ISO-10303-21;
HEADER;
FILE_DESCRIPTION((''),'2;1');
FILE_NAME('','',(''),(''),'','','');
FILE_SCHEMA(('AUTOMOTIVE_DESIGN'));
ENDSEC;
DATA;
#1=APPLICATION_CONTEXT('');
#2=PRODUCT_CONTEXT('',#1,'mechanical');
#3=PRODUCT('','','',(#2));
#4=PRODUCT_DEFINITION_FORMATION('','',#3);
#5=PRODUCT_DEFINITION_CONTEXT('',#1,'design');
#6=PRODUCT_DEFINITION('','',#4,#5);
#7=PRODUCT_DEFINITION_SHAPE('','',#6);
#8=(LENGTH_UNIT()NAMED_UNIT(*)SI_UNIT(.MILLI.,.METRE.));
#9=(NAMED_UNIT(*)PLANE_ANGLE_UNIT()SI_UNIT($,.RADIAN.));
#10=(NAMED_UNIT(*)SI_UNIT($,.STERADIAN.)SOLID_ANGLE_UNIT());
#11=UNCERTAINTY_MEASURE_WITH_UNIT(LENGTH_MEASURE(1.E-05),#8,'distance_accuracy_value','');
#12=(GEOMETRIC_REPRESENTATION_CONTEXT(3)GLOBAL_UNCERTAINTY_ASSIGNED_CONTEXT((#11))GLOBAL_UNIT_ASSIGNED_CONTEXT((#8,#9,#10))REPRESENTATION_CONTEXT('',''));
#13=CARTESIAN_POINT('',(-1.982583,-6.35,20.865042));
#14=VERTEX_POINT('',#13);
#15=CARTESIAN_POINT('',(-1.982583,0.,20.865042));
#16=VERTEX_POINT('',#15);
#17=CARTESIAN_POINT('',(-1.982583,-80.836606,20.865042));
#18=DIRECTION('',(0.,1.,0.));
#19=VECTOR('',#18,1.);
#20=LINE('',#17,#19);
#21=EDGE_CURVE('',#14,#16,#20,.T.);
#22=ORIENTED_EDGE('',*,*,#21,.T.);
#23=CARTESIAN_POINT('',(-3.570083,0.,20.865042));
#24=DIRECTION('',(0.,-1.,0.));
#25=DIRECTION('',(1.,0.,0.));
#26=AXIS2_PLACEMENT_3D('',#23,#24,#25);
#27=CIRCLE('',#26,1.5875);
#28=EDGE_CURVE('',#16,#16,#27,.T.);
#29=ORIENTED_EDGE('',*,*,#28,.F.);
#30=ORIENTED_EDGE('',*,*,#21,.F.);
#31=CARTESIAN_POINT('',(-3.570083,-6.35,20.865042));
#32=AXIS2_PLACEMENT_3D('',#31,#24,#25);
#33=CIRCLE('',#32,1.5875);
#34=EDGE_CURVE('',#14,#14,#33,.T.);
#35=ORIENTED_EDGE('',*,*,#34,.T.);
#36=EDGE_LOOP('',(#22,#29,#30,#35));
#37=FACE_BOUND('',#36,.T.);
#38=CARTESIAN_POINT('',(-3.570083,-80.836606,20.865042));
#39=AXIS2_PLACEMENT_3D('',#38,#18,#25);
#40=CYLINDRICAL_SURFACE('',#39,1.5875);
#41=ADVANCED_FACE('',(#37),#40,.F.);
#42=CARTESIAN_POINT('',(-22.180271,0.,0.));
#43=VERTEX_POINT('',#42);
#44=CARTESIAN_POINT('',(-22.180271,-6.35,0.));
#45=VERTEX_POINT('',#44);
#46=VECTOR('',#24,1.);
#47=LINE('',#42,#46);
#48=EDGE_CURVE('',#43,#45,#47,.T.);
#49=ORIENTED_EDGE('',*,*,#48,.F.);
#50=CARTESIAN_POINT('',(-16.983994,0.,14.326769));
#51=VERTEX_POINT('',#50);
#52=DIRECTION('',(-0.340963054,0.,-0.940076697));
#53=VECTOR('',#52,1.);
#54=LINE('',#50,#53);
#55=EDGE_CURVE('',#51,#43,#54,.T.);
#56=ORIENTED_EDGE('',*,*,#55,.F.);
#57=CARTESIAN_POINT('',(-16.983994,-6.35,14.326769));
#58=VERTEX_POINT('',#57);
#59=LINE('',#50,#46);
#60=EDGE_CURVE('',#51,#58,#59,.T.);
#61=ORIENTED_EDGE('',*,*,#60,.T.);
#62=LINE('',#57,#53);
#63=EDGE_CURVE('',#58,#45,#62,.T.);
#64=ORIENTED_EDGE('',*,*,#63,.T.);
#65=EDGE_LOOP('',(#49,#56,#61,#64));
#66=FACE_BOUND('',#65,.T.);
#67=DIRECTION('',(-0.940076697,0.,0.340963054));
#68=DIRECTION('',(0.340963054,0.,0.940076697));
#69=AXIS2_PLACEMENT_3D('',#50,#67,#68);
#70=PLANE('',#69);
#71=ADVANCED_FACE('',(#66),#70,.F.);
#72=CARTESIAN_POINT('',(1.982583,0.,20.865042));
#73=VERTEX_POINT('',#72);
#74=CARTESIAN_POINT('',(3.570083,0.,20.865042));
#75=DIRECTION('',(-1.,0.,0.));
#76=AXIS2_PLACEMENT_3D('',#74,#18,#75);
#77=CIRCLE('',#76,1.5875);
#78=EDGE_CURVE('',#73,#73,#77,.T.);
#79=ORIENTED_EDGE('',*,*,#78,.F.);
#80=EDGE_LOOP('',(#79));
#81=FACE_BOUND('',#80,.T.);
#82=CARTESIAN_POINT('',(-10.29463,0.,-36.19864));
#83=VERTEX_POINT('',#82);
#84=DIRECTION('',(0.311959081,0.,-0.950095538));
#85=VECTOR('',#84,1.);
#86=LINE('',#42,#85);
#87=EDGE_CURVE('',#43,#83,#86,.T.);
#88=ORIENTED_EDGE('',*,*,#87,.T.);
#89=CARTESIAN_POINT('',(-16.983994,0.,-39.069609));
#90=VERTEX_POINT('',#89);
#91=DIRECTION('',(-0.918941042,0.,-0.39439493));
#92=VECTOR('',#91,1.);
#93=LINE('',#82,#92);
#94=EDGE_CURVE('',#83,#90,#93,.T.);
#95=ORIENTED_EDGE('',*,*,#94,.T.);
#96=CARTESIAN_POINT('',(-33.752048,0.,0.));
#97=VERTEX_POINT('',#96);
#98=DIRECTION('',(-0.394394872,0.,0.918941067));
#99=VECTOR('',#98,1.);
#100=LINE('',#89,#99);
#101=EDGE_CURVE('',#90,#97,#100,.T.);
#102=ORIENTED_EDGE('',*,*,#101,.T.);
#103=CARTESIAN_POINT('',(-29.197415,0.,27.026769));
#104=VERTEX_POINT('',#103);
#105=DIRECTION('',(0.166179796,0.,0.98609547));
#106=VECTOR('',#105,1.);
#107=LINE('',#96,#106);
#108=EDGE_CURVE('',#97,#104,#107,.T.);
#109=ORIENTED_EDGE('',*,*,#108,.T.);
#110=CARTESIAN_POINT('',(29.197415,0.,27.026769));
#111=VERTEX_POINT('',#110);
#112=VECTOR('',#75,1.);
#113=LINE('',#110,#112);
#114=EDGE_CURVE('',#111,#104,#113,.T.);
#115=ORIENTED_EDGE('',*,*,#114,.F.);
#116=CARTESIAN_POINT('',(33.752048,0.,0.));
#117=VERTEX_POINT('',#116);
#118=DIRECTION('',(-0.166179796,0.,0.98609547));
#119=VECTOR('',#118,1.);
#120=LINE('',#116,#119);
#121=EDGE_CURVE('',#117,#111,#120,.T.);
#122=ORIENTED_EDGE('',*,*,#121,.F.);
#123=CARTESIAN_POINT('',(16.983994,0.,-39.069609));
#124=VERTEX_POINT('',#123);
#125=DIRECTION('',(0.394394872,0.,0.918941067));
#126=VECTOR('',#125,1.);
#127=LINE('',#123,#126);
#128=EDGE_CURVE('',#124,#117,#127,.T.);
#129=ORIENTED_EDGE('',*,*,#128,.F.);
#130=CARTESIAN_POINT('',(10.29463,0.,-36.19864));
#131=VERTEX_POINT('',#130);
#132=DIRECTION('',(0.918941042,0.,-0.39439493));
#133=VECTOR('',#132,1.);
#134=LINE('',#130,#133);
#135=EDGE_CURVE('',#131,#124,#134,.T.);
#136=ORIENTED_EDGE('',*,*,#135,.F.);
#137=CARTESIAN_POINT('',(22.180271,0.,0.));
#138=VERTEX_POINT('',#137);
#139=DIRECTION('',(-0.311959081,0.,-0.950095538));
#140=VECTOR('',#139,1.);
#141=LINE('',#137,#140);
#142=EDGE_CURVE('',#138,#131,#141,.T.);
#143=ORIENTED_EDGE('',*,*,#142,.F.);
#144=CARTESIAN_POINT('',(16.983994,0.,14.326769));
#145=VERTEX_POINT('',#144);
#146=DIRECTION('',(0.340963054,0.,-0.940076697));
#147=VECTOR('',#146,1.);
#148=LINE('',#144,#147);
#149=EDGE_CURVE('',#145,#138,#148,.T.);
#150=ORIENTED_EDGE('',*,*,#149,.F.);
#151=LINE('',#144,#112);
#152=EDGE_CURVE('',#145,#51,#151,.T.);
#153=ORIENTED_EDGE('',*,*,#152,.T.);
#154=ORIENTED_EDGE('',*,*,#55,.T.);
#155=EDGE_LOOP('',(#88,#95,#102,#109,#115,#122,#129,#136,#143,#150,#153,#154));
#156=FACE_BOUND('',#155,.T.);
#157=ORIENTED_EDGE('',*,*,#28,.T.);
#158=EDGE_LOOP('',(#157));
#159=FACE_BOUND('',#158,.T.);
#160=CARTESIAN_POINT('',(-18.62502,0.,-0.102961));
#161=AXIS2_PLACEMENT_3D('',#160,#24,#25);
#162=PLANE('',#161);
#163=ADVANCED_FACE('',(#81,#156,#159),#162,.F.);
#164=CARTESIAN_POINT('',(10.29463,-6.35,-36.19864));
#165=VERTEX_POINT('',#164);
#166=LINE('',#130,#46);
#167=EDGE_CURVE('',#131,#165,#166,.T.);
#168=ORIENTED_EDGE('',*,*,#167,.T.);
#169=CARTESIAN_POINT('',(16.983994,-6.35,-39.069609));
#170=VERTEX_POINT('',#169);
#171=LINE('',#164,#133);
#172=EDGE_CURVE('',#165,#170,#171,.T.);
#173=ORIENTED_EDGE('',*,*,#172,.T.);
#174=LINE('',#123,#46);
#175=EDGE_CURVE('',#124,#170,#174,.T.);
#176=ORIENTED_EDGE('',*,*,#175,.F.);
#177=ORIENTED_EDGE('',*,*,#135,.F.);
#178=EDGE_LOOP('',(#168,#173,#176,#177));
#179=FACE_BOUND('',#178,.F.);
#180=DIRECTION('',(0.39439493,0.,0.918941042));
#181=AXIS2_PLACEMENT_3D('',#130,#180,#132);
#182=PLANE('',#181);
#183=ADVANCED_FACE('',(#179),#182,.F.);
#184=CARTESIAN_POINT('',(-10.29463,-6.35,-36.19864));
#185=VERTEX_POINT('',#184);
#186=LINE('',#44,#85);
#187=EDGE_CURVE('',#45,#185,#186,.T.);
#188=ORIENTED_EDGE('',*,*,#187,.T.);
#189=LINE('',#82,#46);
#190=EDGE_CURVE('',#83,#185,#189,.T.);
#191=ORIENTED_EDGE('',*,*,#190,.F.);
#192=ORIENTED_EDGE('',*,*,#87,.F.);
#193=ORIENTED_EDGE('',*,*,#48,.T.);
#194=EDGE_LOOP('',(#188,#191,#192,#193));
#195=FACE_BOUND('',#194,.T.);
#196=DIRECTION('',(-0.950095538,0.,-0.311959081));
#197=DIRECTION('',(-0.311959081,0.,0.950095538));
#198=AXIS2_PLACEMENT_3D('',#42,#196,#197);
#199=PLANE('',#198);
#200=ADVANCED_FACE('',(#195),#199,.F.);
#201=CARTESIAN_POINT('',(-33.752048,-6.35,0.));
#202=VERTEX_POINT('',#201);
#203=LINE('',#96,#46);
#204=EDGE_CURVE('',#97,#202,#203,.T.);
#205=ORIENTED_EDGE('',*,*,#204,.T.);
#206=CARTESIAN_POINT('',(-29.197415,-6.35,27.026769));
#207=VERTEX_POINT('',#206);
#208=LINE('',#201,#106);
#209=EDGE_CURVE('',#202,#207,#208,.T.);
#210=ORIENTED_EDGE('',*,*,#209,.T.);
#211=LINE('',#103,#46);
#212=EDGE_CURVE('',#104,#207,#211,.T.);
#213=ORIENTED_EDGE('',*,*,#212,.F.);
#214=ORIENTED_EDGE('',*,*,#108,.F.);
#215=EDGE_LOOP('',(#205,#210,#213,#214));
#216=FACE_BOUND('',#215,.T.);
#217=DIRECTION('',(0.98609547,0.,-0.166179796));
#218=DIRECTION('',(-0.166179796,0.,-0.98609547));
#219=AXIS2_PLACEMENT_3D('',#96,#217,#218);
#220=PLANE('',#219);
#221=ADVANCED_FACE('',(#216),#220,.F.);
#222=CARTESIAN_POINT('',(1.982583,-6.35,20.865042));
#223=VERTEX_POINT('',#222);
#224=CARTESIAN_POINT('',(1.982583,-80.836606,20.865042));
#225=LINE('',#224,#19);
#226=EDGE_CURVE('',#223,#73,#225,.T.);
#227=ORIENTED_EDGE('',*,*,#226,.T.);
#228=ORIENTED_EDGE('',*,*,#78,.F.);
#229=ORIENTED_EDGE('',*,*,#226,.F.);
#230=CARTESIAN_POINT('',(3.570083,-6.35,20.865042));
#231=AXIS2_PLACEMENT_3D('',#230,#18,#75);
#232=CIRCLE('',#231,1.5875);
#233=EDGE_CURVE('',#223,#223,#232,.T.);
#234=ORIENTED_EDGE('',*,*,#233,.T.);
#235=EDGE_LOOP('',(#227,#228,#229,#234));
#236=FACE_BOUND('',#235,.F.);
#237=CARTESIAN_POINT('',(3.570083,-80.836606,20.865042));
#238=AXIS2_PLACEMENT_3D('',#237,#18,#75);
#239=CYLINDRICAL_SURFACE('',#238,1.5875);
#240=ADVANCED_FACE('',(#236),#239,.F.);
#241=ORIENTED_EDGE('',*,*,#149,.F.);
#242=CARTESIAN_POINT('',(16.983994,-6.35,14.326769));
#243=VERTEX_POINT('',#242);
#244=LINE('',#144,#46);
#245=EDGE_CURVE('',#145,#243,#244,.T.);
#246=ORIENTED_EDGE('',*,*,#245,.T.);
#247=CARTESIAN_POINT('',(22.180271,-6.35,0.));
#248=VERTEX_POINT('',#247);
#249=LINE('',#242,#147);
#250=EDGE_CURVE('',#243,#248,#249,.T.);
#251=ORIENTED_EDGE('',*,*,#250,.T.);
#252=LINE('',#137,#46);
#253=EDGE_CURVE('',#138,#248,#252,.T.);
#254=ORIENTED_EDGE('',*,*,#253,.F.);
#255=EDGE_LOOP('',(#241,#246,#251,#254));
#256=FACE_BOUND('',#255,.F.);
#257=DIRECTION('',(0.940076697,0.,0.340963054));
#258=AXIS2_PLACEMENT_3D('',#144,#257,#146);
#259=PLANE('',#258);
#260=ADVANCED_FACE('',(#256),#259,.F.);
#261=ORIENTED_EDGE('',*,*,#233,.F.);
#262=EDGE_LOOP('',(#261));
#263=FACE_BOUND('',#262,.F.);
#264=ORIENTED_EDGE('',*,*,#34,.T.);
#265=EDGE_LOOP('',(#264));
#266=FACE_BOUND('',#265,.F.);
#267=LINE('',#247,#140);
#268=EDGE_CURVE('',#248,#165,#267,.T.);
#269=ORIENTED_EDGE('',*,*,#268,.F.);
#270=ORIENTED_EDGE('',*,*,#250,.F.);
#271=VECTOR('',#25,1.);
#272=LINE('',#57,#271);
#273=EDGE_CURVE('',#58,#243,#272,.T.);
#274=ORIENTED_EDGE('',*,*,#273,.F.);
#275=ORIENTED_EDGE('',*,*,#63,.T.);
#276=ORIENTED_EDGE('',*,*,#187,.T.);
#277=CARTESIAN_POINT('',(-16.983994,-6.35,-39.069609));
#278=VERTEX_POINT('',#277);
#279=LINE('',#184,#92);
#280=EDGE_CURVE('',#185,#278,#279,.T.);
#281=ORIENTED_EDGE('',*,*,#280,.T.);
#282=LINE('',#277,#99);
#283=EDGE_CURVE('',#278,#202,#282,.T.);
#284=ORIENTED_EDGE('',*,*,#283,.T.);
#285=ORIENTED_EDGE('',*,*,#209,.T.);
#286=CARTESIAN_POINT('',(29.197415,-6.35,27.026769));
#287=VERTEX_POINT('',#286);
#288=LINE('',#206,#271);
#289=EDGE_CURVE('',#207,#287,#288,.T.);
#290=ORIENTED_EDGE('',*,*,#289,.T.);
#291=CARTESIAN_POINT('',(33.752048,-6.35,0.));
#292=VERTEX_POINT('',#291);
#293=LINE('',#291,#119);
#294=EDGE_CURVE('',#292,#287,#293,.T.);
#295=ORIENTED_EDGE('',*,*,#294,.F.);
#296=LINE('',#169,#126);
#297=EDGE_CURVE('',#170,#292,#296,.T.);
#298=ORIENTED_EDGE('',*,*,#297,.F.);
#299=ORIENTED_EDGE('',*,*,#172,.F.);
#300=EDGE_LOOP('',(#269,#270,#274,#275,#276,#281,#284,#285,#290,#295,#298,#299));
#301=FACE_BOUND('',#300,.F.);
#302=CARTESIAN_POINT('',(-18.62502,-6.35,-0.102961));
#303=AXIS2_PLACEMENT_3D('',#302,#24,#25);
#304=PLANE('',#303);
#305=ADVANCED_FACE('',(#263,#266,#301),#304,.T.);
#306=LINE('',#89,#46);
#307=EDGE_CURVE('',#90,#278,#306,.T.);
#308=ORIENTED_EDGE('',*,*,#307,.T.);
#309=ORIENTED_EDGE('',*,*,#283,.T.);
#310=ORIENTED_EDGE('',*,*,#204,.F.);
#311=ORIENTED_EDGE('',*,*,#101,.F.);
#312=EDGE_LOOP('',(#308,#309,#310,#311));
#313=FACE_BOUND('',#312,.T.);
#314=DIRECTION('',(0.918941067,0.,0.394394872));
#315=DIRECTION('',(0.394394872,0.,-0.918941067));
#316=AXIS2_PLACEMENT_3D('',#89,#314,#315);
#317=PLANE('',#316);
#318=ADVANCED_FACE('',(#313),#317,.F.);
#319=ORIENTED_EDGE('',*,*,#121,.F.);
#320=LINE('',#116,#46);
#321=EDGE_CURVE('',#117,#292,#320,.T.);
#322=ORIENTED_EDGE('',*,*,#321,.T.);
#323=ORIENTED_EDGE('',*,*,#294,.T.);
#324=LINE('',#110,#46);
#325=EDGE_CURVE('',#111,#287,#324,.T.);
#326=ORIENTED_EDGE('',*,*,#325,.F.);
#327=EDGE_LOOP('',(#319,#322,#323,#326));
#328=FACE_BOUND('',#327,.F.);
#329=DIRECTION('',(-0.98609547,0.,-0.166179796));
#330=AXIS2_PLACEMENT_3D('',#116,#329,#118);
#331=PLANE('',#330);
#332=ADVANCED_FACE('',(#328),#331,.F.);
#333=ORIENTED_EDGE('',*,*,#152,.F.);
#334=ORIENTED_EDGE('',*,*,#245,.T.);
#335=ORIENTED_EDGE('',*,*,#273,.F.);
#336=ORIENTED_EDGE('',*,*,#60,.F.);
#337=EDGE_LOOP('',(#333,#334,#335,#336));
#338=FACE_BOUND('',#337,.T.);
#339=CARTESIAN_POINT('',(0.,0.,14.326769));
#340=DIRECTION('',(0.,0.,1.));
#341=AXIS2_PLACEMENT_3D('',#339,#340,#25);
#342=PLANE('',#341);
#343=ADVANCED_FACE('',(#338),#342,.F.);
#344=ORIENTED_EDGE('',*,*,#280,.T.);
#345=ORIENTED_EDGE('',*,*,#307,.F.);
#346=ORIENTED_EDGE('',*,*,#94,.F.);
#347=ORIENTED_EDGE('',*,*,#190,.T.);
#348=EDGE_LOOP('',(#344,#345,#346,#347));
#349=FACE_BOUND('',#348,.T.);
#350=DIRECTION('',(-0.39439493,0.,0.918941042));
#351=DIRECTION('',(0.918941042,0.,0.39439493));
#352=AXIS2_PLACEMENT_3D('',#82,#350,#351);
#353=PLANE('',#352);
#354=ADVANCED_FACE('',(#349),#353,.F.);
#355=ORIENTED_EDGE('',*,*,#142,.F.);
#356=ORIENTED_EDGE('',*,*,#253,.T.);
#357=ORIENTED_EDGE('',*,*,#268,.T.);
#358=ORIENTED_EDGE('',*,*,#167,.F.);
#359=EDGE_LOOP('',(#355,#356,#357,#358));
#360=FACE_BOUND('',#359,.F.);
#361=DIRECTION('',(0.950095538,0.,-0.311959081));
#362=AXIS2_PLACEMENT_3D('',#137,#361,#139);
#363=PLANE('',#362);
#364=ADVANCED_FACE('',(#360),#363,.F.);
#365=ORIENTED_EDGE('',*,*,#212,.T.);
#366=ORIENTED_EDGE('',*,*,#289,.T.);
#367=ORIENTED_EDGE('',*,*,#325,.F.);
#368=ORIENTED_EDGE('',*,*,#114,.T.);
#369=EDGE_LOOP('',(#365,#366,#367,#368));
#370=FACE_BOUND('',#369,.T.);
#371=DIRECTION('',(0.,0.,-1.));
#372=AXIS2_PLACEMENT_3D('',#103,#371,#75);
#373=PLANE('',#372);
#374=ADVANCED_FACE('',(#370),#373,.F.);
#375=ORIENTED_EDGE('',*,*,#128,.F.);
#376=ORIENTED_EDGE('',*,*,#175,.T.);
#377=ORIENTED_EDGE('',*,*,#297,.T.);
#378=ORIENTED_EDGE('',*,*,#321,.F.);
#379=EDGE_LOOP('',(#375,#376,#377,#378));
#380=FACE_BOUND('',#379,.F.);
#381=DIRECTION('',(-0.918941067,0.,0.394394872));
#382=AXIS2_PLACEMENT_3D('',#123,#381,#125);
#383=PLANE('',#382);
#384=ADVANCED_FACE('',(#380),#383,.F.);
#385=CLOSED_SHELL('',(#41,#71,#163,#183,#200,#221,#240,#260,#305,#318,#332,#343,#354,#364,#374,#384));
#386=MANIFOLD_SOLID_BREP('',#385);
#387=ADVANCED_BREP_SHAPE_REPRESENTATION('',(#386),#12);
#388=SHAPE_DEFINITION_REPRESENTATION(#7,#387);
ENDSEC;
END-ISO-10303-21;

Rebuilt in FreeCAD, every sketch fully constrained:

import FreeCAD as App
import Part
import Sketcher
from FreeCAD import Vector
Q = App.Units.Quantity


def add_polygon(sketch, points):
    """Adds a closed chain of lines whose ends are joined by coincident constraints."""
    first, n = sketch.GeometryCount, len(points)
    for a, b in zip(points, points[1:] + points[:1]):
        sketch.addGeometry(Part.LineSegment(App.Vector(*a, 0), App.Vector(*b, 0)), False)
    for i in range(n):
        sketch.addConstraint(Sketcher.Constraint("Coincident", first + i, 2, first + (i + 1) % n, 1))

doc = App.newDocument("Part")
body = doc.addObject("PartDesign::Body", "Body")

# Sketch on XZ plane
sketch1 = body.newObject("Sketcher::SketchObject", "Sketch")
sketch1.AttachmentSupport = (doc.getObject("XZ_Plane"), [""])
sketch1.MapMode = "FlatFace"
add_polygon(sketch1, [(29.197415, 27.026769), (0, 27.026769), (0, 14.326769), (16.983994, 14.326769), (22.180271, 0), (10.29463, -36.19864), (16.983994, -39.069609), (33.752048, 0)])  # lines 0-7
sketch1.addConstraint([
    Sketcher.Constraint("Horizontal", 0),
    Sketcher.Constraint("Vertical", 1),
    Sketcher.Constraint("Horizontal", 2),
    Sketcher.Constraint("PointOnObject", 0, 2, -2),
    Sketcher.Constraint("PointOnObject", 3, 2, -1),
    Sketcher.Constraint("PointOnObject", 6, 2, -1),
    Sketcher.Constraint("Perpendicular", 5, 6),
    Sketcher.Constraint("Vertical", 2, 2, 5, 2),
    Sketcher.Constraint("DistanceY", 1, 2, 1, 1, Q("0.5 in")),
    Sketcher.Constraint("Distance", 3, Q("0.6 in")),
    Sketcher.Constraint("Distance", 4, Q("1.5 in")),
    Sketcher.Constraint("DistanceX", 0, 2, 0, 1, Q("29.197415 mm")),
    Sketcher.Constraint("DistanceX", 2, 1, 2, 2, Q("16.983994 mm")),
    Sketcher.Constraint("DistanceY", -1, 1, 0, 2, Q("27.026769 mm")),
    Sketcher.Constraint("DistanceX", -1, 1, 4, 2, Q("10.29463 mm")),
    Sketcher.Constraint("DistanceY", 5, 2, -1, 1, Q("39.069609 mm")),
])
pad1 = body.newObject("PartDesign::Pad", "Pad")
pad1.Profile = sketch1
pad1.Length = Q("0.25 in")

# Sketch on XZ plane
sketch2 = body.newObject("Sketcher::SketchObject", "Sketch001")
sketch2.AttachmentSupport = (doc.getObject("XZ_Plane"), [""])
sketch2.MapMode = "FlatFace"
sketch2.AttachmentOffset = App.Placement(Vector(0, 0, 0.25 * 25.4), App.Rotation())
sketch2.addGeometry(Part.Circle(Vector(3.570083, 20.865042, 0), Vector(0, 0, 1), 1.5875), False)
sketch2.addConstraint([
    Sketcher.Constraint("Diameter", 0, Q("0.125 in")),
    Sketcher.Constraint("DistanceY", -1, 1, 0, 3, Q("20.865042 mm")),
    Sketcher.Constraint("DistanceX", -1, 1, 0, 3, Q("3.570083 mm")),
])
doc.recompute()
hole = body.newObject("PartDesign::Hole", "Hole")
hole.Profile = sketch2
hole.ThreadType = "None"
hole.Diameter = Q("0.125 in")
hole.DepthType = "ThroughAll"
body2 = doc.addObject("PartDesign::Body", "Body001")
doc.recompute()

body2.BaseFeature = body
doc.recompute()

mirroring = doc.addObject("Part::Mirroring", "Mirroring")
mirroring.Source = body
mirroring.Base = Vector(0, 0, 0)
mirroring.Normal = Vector(1, 0, 0)
body3 = doc.addObject("PartDesign::Body", "Body002")
body3.BaseFeature = mirroring
boolean = body2.newObject("PartDesign::Boolean", "Boolean")
boolean.Type = "Fuse"
boolean.addObjects([body3])
doc.recompute()
mirroring.Visibility = False

doc.recompute()
